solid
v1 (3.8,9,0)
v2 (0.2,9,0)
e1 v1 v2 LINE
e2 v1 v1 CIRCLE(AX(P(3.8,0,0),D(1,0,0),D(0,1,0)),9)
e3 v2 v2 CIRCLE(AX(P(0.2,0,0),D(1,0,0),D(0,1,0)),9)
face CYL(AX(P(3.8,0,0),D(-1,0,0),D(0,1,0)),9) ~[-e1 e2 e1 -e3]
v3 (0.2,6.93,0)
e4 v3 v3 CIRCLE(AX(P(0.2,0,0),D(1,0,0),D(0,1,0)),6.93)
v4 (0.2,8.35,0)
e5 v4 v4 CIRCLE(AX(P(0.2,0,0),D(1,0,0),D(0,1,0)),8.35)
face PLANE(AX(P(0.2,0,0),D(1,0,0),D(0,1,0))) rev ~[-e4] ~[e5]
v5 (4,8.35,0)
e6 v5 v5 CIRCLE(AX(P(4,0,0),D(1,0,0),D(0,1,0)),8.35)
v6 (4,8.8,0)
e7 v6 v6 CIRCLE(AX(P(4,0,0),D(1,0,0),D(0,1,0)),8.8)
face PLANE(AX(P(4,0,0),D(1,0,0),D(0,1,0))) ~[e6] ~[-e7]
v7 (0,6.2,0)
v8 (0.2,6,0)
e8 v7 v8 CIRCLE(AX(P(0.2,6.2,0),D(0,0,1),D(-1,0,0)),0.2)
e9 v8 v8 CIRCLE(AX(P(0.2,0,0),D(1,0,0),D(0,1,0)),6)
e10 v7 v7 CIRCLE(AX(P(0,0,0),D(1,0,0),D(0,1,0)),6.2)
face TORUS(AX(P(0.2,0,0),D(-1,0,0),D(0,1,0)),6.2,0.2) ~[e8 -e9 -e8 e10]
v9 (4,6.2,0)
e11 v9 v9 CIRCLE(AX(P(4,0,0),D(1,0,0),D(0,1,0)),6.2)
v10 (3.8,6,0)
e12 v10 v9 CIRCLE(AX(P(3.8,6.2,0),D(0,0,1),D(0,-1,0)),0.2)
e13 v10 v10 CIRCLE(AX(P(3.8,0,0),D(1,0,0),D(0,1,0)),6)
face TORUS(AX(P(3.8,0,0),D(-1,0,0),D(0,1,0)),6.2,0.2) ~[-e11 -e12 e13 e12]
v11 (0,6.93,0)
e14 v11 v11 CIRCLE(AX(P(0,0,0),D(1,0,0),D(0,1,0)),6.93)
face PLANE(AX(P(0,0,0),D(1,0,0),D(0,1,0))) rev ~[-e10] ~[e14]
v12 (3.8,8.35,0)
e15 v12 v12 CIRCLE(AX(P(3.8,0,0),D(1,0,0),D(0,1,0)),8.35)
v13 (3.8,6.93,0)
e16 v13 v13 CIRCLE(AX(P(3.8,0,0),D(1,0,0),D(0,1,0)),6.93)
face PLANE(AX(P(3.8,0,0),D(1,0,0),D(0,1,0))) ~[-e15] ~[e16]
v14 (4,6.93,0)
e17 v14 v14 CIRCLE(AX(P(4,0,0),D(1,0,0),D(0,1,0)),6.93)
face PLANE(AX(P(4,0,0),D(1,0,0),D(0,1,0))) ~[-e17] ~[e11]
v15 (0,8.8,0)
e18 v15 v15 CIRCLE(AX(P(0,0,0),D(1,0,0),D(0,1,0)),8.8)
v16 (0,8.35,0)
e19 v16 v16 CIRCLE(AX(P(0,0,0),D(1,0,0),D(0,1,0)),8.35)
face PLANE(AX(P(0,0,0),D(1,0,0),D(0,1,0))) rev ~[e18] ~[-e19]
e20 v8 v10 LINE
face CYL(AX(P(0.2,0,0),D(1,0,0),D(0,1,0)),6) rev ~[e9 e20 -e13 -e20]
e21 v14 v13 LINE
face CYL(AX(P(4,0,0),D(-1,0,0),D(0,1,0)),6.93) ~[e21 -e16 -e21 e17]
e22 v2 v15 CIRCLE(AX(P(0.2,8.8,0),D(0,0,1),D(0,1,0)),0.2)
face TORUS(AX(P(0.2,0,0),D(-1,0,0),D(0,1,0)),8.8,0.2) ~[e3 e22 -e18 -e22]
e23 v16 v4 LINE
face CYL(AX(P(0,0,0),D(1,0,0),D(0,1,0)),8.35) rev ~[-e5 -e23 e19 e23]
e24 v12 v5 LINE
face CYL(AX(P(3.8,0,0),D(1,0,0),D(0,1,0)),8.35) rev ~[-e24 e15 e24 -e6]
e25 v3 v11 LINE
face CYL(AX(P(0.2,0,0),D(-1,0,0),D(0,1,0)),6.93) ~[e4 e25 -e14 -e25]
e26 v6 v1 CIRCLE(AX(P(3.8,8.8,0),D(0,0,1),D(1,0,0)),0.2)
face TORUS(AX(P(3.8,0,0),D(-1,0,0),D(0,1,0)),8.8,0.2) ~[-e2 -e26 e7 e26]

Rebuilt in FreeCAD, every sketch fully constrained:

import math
import FreeCAD as App
import Part
import Sketcher

V = App.Vector

doc = App.newDocument("Part")
params = doc.addObject("Spreadsheet::Sheet", "Params")
for row, (alias, value) in enumerate([
    ("sketch1_radius", "0.2 mm"),
    ("sketch1_width", "3.6 mm"),
    ("sketch1_height", "0.73 mm"),
    ("sketch1_height2", "1.42 mm"),
    ("revolution_angle", "360 deg"),
], start=1):
    params.set(f"A{row}", alias)
    params.set(f"B{row}", "=" + value)
    params.setAlias(f"B{row}", alias)

body = doc.addObject("PartDesign::Body", "Body")

sketch1 = body.newObject("Sketcher::SketchObject", "Sketch")
sketch1.AttachmentSupport = (doc.getObject("XY_Plane"), [""])
sketch1.MapMode = "FlatFace"
sketch1.addGeometry([
    Part.LineSegment(V(0, 6.93, 0), V(0, 6.2, 0)),
    Part.ArcOfCircle(Part.Circle(V(0.2, 6.2, 0), V(0, 0, 1), 0.2), math.radians(180), math.radians(270)),
    Part.LineSegment(V(0.2, 6, 0), V(3.8, 6, 0)),
    Part.ArcOfCircle(Part.Circle(V(3.8, 6.2, 0), V(0, 0, 1), 0.2), math.radians(-90), math.radians(0)),
    Part.LineSegment(V(4, 6.2, 0), V(4, 6.93, 0)),
    Part.LineSegment(V(4, 6.93, 0), V(3.8, 6.93, 0)),
    Part.LineSegment(V(3.8, 6.93, 0), V(3.8, 8.35, 0)),
    Part.LineSegment(V(3.8, 8.35, 0), V(4, 8.35, 0)),
    Part.LineSegment(V(4, 8.35, 0), V(4, 8.8, 0)),
    Part.ArcOfCircle(Part.Circle(V(3.8, 8.8, 0), V(0, 0, 1), 0.2), math.radians(0), math.radians(90)),
    Part.LineSegment(V(3.8, 9, 0), V(0.2, 9, 0)),
    Part.ArcOfCircle(Part.Circle(V(0.2, 8.8, 0), V(0, 0, 1), 0.2), math.radians(90), math.radians(180)),
    Part.LineSegment(V(0, 8.8, 0), V(0, 8.35, 0)),
    Part.LineSegment(V(0, 8.35, 0), V(0.2, 8.35, 0)),
    Part.LineSegment(V(0.2, 8.35, 0), V(0.2, 6.93, 0)),
    Part.LineSegment(V(0.2, 6.93, 0), V(0, 6.93, 0)),
], False)
sketch1.addConstraint([
    Sketcher.Constraint("Tangent", 0, 2, 1, 1),
    Sketcher.Constraint("Tangent", 1, 2, 2, 1),
    Sketcher.Constraint("Tangent", 2, 2, 3, 1),
    Sketcher.Constraint("Tangent", 3, 2, 4, 1),
    Sketcher.Constraint("Coincident", 4, 2, 5, 1),
    Sketcher.Constraint("Coincident", 5, 2, 6, 1),
    Sketcher.Constraint("Coincident", 6, 2, 7, 1),
    Sketcher.Constraint("Coincident", 7, 2, 8, 1),
    Sketcher.Constraint("Tangent", 8, 2, 9, 1),
    Sketcher.Constraint("Tangent", 9, 2, 10, 1),
    Sketcher.Constraint("Tangent", 10, 2, 11, 1),
    Sketcher.Constraint("Tangent", 11, 2, 12, 1),
    Sketcher.Constraint("Coincident", 12, 2, 13, 1),
    Sketcher.Constraint("Coincident", 13, 2, 14, 1),
    Sketcher.Constraint("Coincident", 14, 2, 15, 1),
    Sketcher.Constraint("Coincident", 15, 2, 0, 1),
    Sketcher.Constraint("Vertical", 0),
    Sketcher.Constraint("Horizontal", 2),
    Sketcher.Constraint("Vertical", 4),
    Sketcher.Constraint("Horizontal", 5),
    Sketcher.Constraint("Vertical", 6),
    Sketcher.Constraint("Horizontal", 7),
    Sketcher.Constraint("Vertical", 8),
    Sketcher.Constraint("Horizontal", 10),
    Sketcher.Constraint("Vertical", 12),
    Sketcher.Constraint("Horizontal", 13),
    Sketcher.Constraint("Vertical", 14),
    Sketcher.Constraint("Horizontal", 15),
    Sketcher.Constraint("Equal", 1, 3),
    Sketcher.Constraint("Equal", 3, 9),
    Sketcher.Constraint("Equal", 9, 11),
    Sketcher.Constraint("PointOnObject", 0, 2, -2),
    Sketcher.Constraint("PointOnObject", 11, 2, -2),
    Sketcher.Constraint("Horizontal", 7, 2, 12, 2),
    Sketcher.Constraint("Horizontal", 5, 2, 14, 2),
    Sketcher.Constraint("Vertical", 3, 3, 9, 3),
    Sketcher.Constraint("Vertical", 2, 2, 5, 2),
    Sketcher.Constraint("Vertical", 10, 2, 13, 2),
    Sketcher.Constraint("Radius", 1, 0.2),
    Sketcher.Constraint("DistanceX", 2, 1, 2, 2, 3.6),
    Sketcher.Constraint("DistanceY", -1, 1, 1, 2, 6.0),
    Sketcher.Constraint("DistanceY", -1, 1, 9, 2, 9.0),
    Sketcher.Constraint("DistanceY", 0, 2, 0, 1, 0.73),
    Sketcher.Constraint("DistanceY", 6, 1, 6, 2, 1.42),
])
sketch1.setExpression("Constraints[38]", "Params.sketch1_radius")
sketch1.setExpression("Constraints[39]", "Params.sketch1_width")
sketch1.setExpression("Constraints[42]", "Params.sketch1_height")
sketch1.setExpression("Constraints[43]", "Params.sketch1_height2")
revolution = body.newObject("PartDesign::Revolution", "Revolution")
revolution.Profile = sketch1
revolution.ReferenceAxis = (sketch1, ["H_Axis"])
revolution.setExpression("Angle", "Params.revolution_angle")

doc.recompute()
